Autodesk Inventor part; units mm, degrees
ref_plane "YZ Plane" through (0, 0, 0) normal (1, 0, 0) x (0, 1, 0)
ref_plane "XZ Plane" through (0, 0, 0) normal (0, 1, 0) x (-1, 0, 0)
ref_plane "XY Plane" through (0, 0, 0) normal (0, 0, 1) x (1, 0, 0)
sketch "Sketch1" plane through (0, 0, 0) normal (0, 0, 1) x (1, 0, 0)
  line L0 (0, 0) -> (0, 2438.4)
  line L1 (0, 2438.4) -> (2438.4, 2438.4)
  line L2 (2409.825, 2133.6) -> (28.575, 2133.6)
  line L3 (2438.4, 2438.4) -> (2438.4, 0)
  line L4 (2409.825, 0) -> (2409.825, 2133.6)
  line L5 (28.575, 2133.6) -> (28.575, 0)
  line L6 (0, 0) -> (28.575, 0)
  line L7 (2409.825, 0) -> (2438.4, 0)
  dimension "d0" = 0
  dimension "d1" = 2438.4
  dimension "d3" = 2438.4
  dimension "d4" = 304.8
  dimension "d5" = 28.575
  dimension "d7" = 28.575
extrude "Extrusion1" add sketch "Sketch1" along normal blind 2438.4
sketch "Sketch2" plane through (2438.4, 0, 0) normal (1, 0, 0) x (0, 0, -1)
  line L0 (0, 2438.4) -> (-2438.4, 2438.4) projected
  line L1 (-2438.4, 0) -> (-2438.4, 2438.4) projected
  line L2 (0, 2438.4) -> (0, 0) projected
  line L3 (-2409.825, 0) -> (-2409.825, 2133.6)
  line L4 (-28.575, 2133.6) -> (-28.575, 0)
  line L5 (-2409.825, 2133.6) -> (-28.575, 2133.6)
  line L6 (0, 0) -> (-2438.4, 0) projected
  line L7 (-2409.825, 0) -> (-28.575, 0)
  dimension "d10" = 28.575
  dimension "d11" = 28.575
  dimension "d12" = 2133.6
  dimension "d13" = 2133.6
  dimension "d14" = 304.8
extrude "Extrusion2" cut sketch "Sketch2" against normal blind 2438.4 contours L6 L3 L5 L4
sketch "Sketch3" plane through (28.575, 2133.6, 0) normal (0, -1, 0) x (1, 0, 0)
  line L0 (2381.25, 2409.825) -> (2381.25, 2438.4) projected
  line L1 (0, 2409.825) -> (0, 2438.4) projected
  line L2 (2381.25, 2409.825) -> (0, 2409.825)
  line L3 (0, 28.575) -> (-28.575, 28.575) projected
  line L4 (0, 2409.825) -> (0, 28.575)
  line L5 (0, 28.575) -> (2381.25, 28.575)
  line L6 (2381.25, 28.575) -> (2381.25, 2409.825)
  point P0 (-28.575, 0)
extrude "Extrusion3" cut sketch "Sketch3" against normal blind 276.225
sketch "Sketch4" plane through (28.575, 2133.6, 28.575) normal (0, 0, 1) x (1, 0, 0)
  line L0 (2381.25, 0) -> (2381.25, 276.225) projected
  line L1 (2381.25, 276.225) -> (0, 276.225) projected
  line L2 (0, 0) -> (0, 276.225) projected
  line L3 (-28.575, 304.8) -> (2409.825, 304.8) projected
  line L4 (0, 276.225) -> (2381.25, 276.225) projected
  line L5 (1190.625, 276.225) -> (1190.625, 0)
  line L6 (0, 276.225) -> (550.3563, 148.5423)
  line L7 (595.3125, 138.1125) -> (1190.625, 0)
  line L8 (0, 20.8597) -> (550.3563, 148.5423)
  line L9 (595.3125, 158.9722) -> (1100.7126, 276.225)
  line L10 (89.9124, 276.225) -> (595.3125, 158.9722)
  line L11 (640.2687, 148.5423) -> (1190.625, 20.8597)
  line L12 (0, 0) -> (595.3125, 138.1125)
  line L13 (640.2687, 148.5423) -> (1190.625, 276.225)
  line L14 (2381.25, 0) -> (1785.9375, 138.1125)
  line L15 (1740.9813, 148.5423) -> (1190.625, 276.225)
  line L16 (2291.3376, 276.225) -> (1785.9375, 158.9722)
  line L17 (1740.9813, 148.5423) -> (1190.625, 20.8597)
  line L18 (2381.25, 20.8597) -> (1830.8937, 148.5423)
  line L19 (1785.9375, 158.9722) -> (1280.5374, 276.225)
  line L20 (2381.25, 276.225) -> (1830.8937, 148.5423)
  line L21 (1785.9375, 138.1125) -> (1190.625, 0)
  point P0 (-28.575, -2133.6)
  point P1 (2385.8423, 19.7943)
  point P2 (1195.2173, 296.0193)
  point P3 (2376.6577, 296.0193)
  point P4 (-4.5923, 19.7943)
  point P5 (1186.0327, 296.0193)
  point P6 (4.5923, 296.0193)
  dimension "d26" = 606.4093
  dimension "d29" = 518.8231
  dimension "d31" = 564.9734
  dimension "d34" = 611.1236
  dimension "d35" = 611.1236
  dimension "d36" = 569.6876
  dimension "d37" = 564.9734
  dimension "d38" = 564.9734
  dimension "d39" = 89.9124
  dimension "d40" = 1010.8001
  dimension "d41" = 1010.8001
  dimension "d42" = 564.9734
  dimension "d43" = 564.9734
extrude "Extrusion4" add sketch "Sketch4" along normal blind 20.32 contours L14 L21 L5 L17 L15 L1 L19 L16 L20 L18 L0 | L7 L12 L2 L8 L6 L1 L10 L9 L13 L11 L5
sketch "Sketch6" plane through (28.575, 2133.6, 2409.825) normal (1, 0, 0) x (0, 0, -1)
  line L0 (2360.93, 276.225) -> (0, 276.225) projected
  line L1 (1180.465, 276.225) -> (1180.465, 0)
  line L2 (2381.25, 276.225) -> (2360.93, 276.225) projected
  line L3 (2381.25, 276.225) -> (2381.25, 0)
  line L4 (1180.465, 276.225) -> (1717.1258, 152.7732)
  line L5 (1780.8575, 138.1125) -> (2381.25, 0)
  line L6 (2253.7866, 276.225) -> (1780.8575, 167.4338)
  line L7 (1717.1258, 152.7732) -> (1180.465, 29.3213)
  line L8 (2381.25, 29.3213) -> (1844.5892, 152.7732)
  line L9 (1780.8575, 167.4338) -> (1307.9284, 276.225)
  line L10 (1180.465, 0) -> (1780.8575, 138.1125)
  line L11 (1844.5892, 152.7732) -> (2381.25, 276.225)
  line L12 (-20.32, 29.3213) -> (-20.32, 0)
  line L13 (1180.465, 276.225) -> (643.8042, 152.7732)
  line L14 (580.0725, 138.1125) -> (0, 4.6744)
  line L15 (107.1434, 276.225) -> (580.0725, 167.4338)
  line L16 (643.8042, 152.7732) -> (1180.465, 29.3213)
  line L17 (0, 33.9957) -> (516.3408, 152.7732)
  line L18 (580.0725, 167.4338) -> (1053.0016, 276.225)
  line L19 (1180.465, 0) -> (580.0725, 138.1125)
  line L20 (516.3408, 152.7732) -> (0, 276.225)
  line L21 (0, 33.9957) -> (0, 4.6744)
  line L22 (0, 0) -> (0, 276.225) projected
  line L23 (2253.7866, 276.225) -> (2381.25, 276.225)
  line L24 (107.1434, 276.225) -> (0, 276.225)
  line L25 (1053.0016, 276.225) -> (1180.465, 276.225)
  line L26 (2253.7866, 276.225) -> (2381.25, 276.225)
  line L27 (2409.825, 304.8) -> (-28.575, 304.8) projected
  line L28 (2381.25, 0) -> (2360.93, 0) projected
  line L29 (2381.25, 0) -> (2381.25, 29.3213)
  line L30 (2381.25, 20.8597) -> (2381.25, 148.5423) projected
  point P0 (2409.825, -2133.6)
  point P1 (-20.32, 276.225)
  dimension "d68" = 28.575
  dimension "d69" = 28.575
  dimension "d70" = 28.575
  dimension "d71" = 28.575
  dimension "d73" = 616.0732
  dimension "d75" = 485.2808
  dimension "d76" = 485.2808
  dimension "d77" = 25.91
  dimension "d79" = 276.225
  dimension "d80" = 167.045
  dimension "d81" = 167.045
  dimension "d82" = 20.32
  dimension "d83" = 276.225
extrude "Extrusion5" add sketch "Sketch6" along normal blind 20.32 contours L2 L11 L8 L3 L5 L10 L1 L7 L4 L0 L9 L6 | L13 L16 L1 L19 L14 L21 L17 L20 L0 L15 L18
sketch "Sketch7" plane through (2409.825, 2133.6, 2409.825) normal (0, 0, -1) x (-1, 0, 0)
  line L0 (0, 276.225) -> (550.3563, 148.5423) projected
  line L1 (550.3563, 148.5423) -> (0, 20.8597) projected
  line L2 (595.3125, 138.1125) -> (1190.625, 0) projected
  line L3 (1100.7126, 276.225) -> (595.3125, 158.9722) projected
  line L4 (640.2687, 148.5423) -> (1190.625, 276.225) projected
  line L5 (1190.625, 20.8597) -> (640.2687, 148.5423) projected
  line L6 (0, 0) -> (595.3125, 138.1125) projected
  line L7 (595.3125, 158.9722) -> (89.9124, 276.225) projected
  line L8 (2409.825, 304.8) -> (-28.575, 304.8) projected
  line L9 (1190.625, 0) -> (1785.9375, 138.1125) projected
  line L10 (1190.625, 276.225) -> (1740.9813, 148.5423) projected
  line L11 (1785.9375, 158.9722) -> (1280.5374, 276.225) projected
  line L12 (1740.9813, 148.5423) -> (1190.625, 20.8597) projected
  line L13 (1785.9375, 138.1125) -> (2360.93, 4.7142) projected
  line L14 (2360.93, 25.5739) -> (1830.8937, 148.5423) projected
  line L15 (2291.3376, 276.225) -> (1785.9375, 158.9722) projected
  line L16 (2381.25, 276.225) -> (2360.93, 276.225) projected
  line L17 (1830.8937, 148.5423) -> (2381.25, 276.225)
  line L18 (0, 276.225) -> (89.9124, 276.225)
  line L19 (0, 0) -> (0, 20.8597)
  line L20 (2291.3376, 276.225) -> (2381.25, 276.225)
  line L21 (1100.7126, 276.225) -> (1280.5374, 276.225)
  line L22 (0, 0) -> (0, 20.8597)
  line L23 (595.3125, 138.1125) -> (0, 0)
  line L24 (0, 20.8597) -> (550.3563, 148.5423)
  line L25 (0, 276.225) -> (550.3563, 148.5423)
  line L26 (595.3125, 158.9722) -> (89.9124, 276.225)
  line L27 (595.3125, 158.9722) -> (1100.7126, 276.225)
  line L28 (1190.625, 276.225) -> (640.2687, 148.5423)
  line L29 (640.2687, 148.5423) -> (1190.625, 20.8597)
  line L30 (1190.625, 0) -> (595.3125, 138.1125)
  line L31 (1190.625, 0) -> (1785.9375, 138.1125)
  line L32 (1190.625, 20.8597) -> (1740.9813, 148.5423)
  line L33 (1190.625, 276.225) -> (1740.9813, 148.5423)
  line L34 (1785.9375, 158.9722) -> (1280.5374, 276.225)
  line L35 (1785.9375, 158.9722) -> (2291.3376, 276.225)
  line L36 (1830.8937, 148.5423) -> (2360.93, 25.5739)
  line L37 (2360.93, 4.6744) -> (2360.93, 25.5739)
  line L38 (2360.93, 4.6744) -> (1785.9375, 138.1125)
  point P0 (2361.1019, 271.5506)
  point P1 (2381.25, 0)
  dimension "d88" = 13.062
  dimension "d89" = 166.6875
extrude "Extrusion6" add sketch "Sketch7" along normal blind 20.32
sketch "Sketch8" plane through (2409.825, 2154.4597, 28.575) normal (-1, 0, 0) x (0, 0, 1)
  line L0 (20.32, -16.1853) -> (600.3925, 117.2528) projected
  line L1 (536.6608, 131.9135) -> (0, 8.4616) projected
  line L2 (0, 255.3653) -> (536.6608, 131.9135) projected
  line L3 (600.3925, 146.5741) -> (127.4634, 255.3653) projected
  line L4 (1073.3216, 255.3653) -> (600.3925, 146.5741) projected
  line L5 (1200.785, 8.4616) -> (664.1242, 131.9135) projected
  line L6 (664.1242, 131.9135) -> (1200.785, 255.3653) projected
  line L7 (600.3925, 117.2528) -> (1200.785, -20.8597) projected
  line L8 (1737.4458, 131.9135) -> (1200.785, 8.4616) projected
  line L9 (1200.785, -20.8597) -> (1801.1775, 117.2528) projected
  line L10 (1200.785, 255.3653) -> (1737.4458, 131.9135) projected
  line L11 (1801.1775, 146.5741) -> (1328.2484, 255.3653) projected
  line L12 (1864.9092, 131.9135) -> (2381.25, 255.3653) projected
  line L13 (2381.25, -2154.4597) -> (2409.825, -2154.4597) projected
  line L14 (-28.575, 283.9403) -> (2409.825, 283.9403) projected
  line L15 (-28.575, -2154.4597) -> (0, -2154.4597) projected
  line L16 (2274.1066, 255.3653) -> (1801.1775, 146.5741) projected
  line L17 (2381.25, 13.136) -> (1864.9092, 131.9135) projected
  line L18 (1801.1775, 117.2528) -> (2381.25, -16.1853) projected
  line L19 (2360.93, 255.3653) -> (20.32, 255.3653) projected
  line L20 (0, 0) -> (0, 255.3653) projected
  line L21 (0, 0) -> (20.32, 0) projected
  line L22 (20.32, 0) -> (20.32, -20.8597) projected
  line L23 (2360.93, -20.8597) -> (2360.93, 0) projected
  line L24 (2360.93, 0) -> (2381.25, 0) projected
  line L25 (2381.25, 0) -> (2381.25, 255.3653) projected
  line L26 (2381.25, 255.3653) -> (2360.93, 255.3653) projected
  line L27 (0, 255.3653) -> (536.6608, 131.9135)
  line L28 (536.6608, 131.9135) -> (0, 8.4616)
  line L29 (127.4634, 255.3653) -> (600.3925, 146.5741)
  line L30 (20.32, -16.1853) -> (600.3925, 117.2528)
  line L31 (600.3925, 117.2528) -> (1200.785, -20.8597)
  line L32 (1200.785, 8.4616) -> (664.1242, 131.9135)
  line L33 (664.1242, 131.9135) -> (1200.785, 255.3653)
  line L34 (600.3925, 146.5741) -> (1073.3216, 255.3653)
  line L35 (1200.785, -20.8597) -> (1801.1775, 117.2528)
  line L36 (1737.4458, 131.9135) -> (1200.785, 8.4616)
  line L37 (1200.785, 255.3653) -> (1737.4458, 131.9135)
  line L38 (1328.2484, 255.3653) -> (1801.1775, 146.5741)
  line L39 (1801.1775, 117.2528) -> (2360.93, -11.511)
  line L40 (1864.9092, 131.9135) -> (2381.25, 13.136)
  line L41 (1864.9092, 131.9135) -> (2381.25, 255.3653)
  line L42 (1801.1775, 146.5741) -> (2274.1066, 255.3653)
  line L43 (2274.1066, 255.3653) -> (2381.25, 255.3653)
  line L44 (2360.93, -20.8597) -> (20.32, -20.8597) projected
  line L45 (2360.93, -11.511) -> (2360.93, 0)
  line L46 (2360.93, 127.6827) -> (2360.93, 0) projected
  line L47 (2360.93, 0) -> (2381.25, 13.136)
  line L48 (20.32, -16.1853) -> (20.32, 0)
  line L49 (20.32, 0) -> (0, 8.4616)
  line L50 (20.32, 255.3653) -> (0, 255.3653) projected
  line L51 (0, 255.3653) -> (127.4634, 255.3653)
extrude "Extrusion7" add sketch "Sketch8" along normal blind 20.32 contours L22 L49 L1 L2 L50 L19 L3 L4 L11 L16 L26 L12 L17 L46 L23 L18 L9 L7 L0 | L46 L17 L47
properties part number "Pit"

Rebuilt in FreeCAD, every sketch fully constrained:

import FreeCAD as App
import Part
import Sketcher
Q = App.Units.Quantity

doc = App.newDocument("Part")
body = doc.addObject("PartDesign::Body", "Body")

sketch1 = doc.addObject("Sketcher::SketchObject", "Sketch")
body.addObject(sketch1)
sketch1.AttachmentSupport = (doc.XY_Plane, [""])
sketch1.MapMode = "FlatFace"
sketch1.addGeometry(Part.LineSegment(App.Vector(0, 2438, 0), App.Vector(0, 0, 0)), False)
sketch1.addGeometry(Part.LineSegment(App.Vector(0, 0, 0), App.Vector(29, 0, 0)), False)
sketch1.addGeometry(Part.LineSegment(App.Vector(29, 0, 0), App.Vector(29, 2134, 0)), False)
sketch1.addGeometry(Part.LineSegment(App.Vector(29, 2134, 0), App.Vector(2410, 2134, 0)), False)
sketch1.addGeometry(Part.LineSegment(App.Vector(2410, 2134, 0), App.Vector(2410, 0, 0)), False)
sketch1.addGeometry(Part.LineSegment(App.Vector(2410, 0, 0), App.Vector(2438, 0, 0)), False)
sketch1.addGeometry(Part.LineSegment(App.Vector(2438, 0, 0), App.Vector(2438, 2438, 0)), False)
sketch1.addGeometry(Part.LineSegment(App.Vector(2438, 2438, 0), App.Vector(0, 2438, 0)), False)
sketch1.addConstraint(Sketcher.Constraint("Coincident", 0, 2, 1, 1))
sketch1.addConstraint(Sketcher.Constraint("Coincident", 1, 2, 2, 1))
sketch1.addConstraint(Sketcher.Constraint("Coincident", 2, 2, 3, 1))
sketch1.addConstraint(Sketcher.Constraint("Coincident", 3, 2, 4, 1))
sketch1.addConstraint(Sketcher.Constraint("Coincident", 4, 2, 5, 1))
sketch1.addConstraint(Sketcher.Constraint("Coincident", 5, 2, 6, 1))
sketch1.addConstraint(Sketcher.Constraint("Coincident", 6, 2, 7, 1))
sketch1.addConstraint(Sketcher.Constraint("Coincident", 7, 2, 0, 1))
sketch1.addConstraint(Sketcher.Constraint("Vertical", 0))
sketch1.addConstraint(Sketcher.Constraint("Horizontal", 1))
sketch1.addConstraint(Sketcher.Constraint("Vertical", 2))
sketch1.addConstraint(Sketcher.Constraint("Horizontal", 3))
sketch1.addConstraint(Sketcher.Constraint("Vertical", 4))
sketch1.addConstraint(Sketcher.Constraint("Horizontal", 5))
sketch1.addConstraint(Sketcher.Constraint("Vertical", 6))
sketch1.addConstraint(Sketcher.Constraint("Horizontal", 7))
sketch1.addConstraint(Sketcher.Constraint("Coincident", 0, 2, -1, 1))
sketch1.addConstraint(Sketcher.Constraint("PointOnObject", 4, 2, -1))
sketch1.addConstraint(Sketcher.Constraint("Equal", 1, 5))
sketch1.addConstraint(Sketcher.Constraint("Equal", 7, 0))
sketch1.addConstraint(Sketcher.Constraint("DistanceX", 7, 2, 7, 1, Q("96 in")))
sketch1.addConstraint(Sketcher.Constraint("DistanceY", 3, 2, 6, 2, Q("12 in")))
sketch1.addConstraint(Sketcher.Constraint("DistanceX", 1, 1, 1, 2, Q("1.125 in")))
pad1 = doc.addObject("PartDesign::Pad", "Pad")
body.addObject(pad1)
pad1.Profile = sketch1
pad1.Length = Q("96 in")

sketch2 = doc.addObject("Sketcher::SketchObject", "Sketch001")
body.addObject(sketch2)
sketch2.AttachmentSupport = (doc.YZ_Plane, [""])
sketch2.MapMode = "FlatFace"
sketch2.AttachmentOffset = App.Placement(App.Vector(0, 0, 96 * 25.4), App.Rotation())
sketch2.addGeometry(Part.LineSegment(App.Vector(0, 2410, 0), App.Vector(0, 29, 0)), False)
sketch2.addGeometry(Part.LineSegment(App.Vector(0, 29, 0), App.Vector(2134, 29, 0)), False)
sketch2.addGeometry(Part.LineSegment(App.Vector(2134, 29, 0), App.Vector(2134, 2410, 0)), False)
sketch2.addGeometry(Part.LineSegment(App.Vector(2134, 2410, 0), App.Vector(0, 2410, 0)), False)
sketch2.addConstraint(Sketcher.Constraint("Coincident", 0, 2, 1, 1))
sketch2.addConstraint(Sketcher.Constraint("Coincident", 1, 2, 2, 1))
sketch2.addConstraint(Sketcher.Constraint("Coincident", 2, 2, 3, 1))
sketch2.addConstraint(Sketcher.Constraint("Coincident", 3, 2, 0, 1))
sketch2.addConstraint(Sketcher.Constraint("Vertical", 0))
sketch2.addConstraint(Sketcher.Constraint("Horizontal", 1))
sketch2.addConstraint(Sketcher.Constraint("Vertical", 2))
sketch2.addConstraint(Sketcher.Constraint("Horizontal", 3))
sketch2.addConstraint(Sketcher.Constraint("PointOnObject", 0, 2, -2))
sketch2.addConstraint(Sketcher.Constraint("DistanceX", 1, 1, 1, 2, Q("84 in")))
sketch2.addConstraint(Sketcher.Constraint("DistanceY", -1, 1, 0, 2, Q("1.125 in")))
sketch2.addConstraint(Sketcher.Constraint("DistanceY", 0, 2, 0, 1, Q("93.75 in")))
pocket1 = doc.addObject("PartDesign::Pocket", "Pocket")
body.addObject(pocket1)
pocket1.Profile = sketch2
pocket1.Length = Q("96 in")

sketch3 = doc.addObject("Sketcher::SketchObject", "Sketch002")
body.addObject(sketch3)
sketch3.AttachmentSupport = (doc.XZ_Plane, [""])
sketch3.MapMode = "FlatFace"
sketch3.AttachmentOffset = App.Placement(App.Vector(0, 0, -84 * 25.4), App.Rotation())
sketch3.addGeometry(Part.LineSegment(App.Vector(2410, 29, 0), App.Vector(2410, 2410, 0)), False)
sketch3.addGeometry(Part.LineSegment(App.Vector(2410, 2410, 0), App.Vector(29, 2410, 0)), False)
sketch3.addGeometry(Part.LineSegment(App.Vector(29, 2410, 0), App.Vector(29, 29, 0)), False)
sketch3.addGeometry(Part.LineSegment(App.Vector(29, 29, 0), App.Vector(2410, 29, 0)), False)
sketch3.addConstraint(Sketcher.Constraint("Coincident", 0, 2, 1, 1))
sketch3.addConstraint(Sketcher.Constraint("Coincident", 1, 2, 2, 1))
sketch3.addConstraint(Sketcher.Constraint("Coincident", 2, 2, 3, 1))
sketch3.addConstraint(Sketcher.Constraint("Coincident", 3, 2, 0, 1))
sketch3.addConstraint(Sketcher.Constraint("Vertical", 0))
sketch3.addConstraint(Sketcher.Constraint("Horizontal", 1))
sketch3.addConstraint(Sketcher.Constraint("Vertical", 2))
sketch3.addConstraint(Sketcher.Constraint("Horizontal", 3))
sketch3.addConstraint(Sketcher.Constraint("Equal", 3, 0))
sketch3.addConstraint(Sketcher.Constraint("DistanceX", 1, 2, 1, 1, Q("93.75 in")))
sketch3.addConstraint(Sketcher.Constraint("DistanceX", -1, 1, 0, 2, Q("94.875 in")))
sketch3.addConstraint(Sketcher.Constraint("DistanceY", -1, 1, 0, 2, Q("94.875 in")))
pocket2 = doc.addObject("PartDesign::Pocket", "Pocket001")
body.addObject(pocket2)
pocket2.Profile = sketch3
pocket2.Length = Q("10.875 in")

sketch4 = doc.addObject("Sketcher::SketchObject", "Sketch003")
body.addObject(sketch4)
sketch4.AttachmentSupport = (doc.XY_Plane, [""])
sketch4.MapMode = "FlatFace"
sketch4.AttachmentOffset = App.Placement(App.Vector(0, 0, 1.125 * 25.4), App.Rotation())
sketch4.addGeometry(Part.LineSegment(App.Vector(1219.2, 2409.825, 0), App.Vector(1129.2876, 2409.825, 0)), False)
sketch4.addGeometry(Part.LineSegment(App.Vector(1129.2876, 2409.825, 0), App.Vector(623.8875, 2292.5722, 0)), False)
sketch4.addGeometry(Part.LineSegment(App.Vector(623.8875, 2292.5722, 0), App.Vector(118.4874, 2409.825, 0)), False)
sketch4.addGeometry(Part.LineSegment(App.Vector(118.4874, 2409.825, 0), App.Vector(28.575, 2409.825, 0)), False)
sketch4.addGeometry(Part.LineSegment(App.Vector(28.575, 2409.825, 0), App.Vector(578.9313, 2282.1423, 0)), False)
sketch4.addGeometry(Part.LineSegment(App.Vector(578.9313, 2282.1423, 0), App.Vector(28.575, 2154.4597, 0)), False)
sketch4.addGeometry(Part.LineSegment(App.Vector(28.575, 2154.4597, 0), App.Vector(28.575, 2133.6, 0)), False)
sketch4.addGeometry(Part.LineSegment(App.Vector(28.575, 2133.6, 0), App.Vector(623.8875, 2271.7125, 0)), False)
sketch4.addGeometry(Part.LineSegment(App.Vector(623.8875, 2271.7125, 0), App.Vector(1219.2, 2133.6, 0)), False)
sketch4.addGeometry(Part.LineSegment(App.Vector(1219.2, 2133.6, 0), App.Vector(1814.5125, 2271.7125, 0)), False)
sketch4.addGeometry(Part.LineSegment(App.Vector(1814.5125, 2271.7125, 0), App.Vector(2409.825, 2133.6, 0)), False)
sketch4.addGeometry(Part.LineSegment(App.Vector(2409.825, 2133.6, 0), App.Vector(2409.825, 2154.4597, 0)), False)
sketch4.addGeometry(Part.LineSegment(App.Vector(2409.825, 2154.4597, 0), App.Vector(1859.4687, 2282.1423, 0)), False)
sketch4.addGeometry(Part.LineSegment(App.Vector(1859.4687, 2282.1423, 0), App.Vector(2409.825, 2409.825, 0)), False)
sketch4.addGeometry(Part.LineSegment(App.Vector(2409.825, 2409.825, 0), App.Vector(2319.9126, 2409.825, 0)), False)
sketch4.addGeometry(Part.LineSegment(App.Vector(2319.9126, 2409.825, 0), App.Vector(1814.5125, 2292.5722, 0)), False)
sketch4.addGeometry(Part.LineSegment(App.Vector(1814.5125, 2292.5722, 0), App.Vector(1309.1124, 2409.825, 0)), False)
sketch4.addGeometry(Part.LineSegment(App.Vector(1309.1124, 2409.825, 0), App.Vector(1219.2, 2409.825, 0)), False)
sketch4.addGeometry(Part.LineSegment(App.Vector(1219.2, 2409.825, 0), App.Vector(1769.5563, 2282.1423, 0)), False)
sketch4.addGeometry(Part.LineSegment(App.Vector(1769.5563, 2282.1423, 0), App.Vector(1219.2, 2154.4597, 0)), False)
sketch4.addGeometry(Part.LineSegment(App.Vector(1219.2, 2154.4597, 0), App.Vector(668.8437, 2282.1423, 0)), False)
sketch4.addGeometry(Part.LineSegment(App.Vector(668.8437, 2282.1423, 0), App.Vector(1219.2, 2409.825, 0)), False)
sketch4.addConstraint(Sketcher.Constraint("Coincident", 0, 2, 1, 1))
sketch4.addConstraint(Sketcher.Constraint("Coincident", 1, 2, 2, 1))
sketch4.addConstraint(Sketcher.Constraint("Coincident", 2, 2, 3, 1))
sketch4.addConstraint(Sketcher.Constraint("Coincident", 3, 2, 4, 1))
sketch4.addConstraint(Sketcher.Constraint("Coincident", 4, 2, 5, 1))
sketch4.addConstraint(Sketcher.Constraint("Coincident", 5, 2, 6, 1))
sketch4.addConstraint(Sketcher.Constraint("Coincident", 6, 2, 7, 1))
sketch4.addConstraint(Sketcher.Constraint("Coincident", 7, 2, 8, 1))
sketch4.addConstraint(Sketcher.Constraint("Coincident", 8, 2, 9, 1))
sketch4.addConstraint(Sketcher.Constraint("Coincident", 9, 2, 10, 1))
sketch4.addConstraint(Sketcher.Constraint("Coincident", 10, 2, 11, 1))
sketch4.addConstraint(Sketcher.Constraint("Coincident", 11, 2, 12, 1))
sketch4.addConstraint(Sketcher.Constraint("Coincident", 12, 2, 13, 1))
sketch4.addConstraint(Sketcher.Constraint("Coincident", 13, 2, 14, 1))
sketch4.addConstraint(Sketcher.Constraint("Coincident", 14, 2, 15, 1))
sketch4.addConstraint(Sketcher.Constraint("Coincident", 15, 2, 16, 1))
sketch4.addConstraint(Sketcher.Constraint("Coincident", 16, 2, 17, 1))
sketch4.addConstraint(Sketcher.Constraint("Coincident", 17, 2, 0, 1))
sketch4.addConstraint(Sketcher.Constraint("Coincident", 18, 2, 19, 1))
sketch4.addConstraint(Sketcher.Constraint("Coincident", 19, 2, 20, 1))
sketch4.addConstraint(Sketcher.Constraint("Coincident", 20, 2, 21, 1))
sketch4.addConstraint(Sketcher.Constraint("Coincident", 21, 2, 18, 1))
sketch4.addConstraint(Sketcher.Constraint("Horizontal", 0))
sketch4.addConstraint(Sketcher.Constraint("Horizontal", 3))
sketch4.addConstraint(Sketcher.Constraint("Vertical", 6))
sketch4.addConstraint(Sketcher.Constraint("Vertical", 11))
sketch4.addConstraint(Sketcher.Constraint("Horizontal", 14))
sketch4.addConstraint(Sketcher.Constraint("Horizontal", 17))
sketch4.addConstraint(Sketcher.Constraint("Coincident", 21, 2, 17, 2))
sketch4.addConstraint(Sketcher.Constraint("DistanceY", -1, 1, 6, 2, Q("84 in")))
sketch4.addConstraint(Sketcher.Constraint("DistanceX", -1, 1, 8, 2, Q("48 in")))
sketch4.addConstraint(Sketcher.Constraint("DistanceY", -1, 1, 8, 2, Q("84 in")))
sketch4.addConstraint(Sketcher.Constraint("DistanceY", -1, 1, 10, 2, Q("84 in")))
sketch4.addConstraint(Sketcher.Constraint("DistanceX", -1, 1, 17, 2, Q("48 in")))
sketch4.addConstraint(Sketcher.Constraint("DistanceX", -1, 1, 19, 2, Q("48 in")))
sketch4.addConstraint(Sketcher.Constraint("Distance", 1, Q("20.4261 in")))
sketch4.addConstraint(Sketcher.Constraint("Distance", 2, Q("20.4261 in")))
sketch4.addConstraint(Sketcher.Constraint("Distance", 15, Q("20.4261 in")))
sketch4.addConstraint(Sketcher.Constraint("Distance", 16, Q("20.4261 in")))
sketch4.addConstraint(Sketcher.Constraint("DistanceX", 0, 2, 0, 1, Q("89.9124 mm")))
sketch4.addConstraint(Sketcher.Constraint("DistanceX", 3, 2, 3, 1, Q("89.9124 mm")))
sketch4.addConstraint(Sketcher.Constraint("DistanceX", 14, 2, 14, 1, Q("89.9124 mm")))
sketch4.addConstraint(Sketcher.Constraint("DistanceX", 17, 2, 17, 1, Q("89.9124 mm")))
sketch4.addConstraint(Sketcher.Constraint("Distance", 4, Q("564.9734 mm")))
sketch4.addConstraint(Sketcher.Constraint("Distance", 5, Q("564.9734 mm")))
sketch4.addConstraint(Sketcher.Constraint("Distance", 7, Q("611.1236 mm")))
sketch4.addConstraint(Sketcher.Constraint("Distance", 8, Q("611.1236 mm")))
sketch4.addConstraint(Sketcher.Constraint("Distance", 9, Q("611.1236 mm")))
sketch4.addConstraint(Sketcher.Constraint("Distance", 10, Q("611.1236 mm")))
sketch4.addConstraint(Sketcher.Constraint("Distance", 12, Q("564.9734 mm")))
sketch4.addConstraint(Sketcher.Constraint("Distance", 13, Q("564.9734 mm")))
sketch4.addConstraint(Sketcher.Constraint("Distance", 18, Q("564.9734 mm")))
sketch4.addConstraint(Sketcher.Constraint("Distance", 19, Q("564.9734 mm")))
sketch4.addConstraint(Sketcher.Constraint("Distance", 20, Q("564.9734 mm")))
sketch4.addConstraint(Sketcher.Constraint("Distance", 21, Q("564.9734 mm")))
sketch4.addConstraint(Sketcher.Constraint("DistanceX", 2, 2, 0, 2, Q("1010.8002 mm")))
sketch4.addConstraint(Sketcher.Constraint("DistanceX", 5, 2, 2, 2, Q("89.9124 mm")))
sketch4.addConstraint(Sketcher.Constraint("DistanceX", 14, 2, 11, 2, Q("89.9124 mm")))
sketch4.addConstraint(Sketcher.Constraint("DistanceX", 18, 2, 12, 2, Q("89.9124 mm")))
sketch4.addConstraint(Sketcher.Constraint("DistanceX", 4, 2, 20, 2, Q("89.9124 mm")))
sketch4.addConstraint(Sketcher.Constraint("DistanceY", -1, 1, 0, 2, Q("94.875 in")))
sketch4.addConstraint(Sketcher.Constraint("DistanceX", -1, 1, 1, 2, Q("24.5625 in")))
sketch4.addConstraint(Sketcher.Constraint("DistanceX", -1, 1, 9, 2, Q("71.4375 in")))
sketch4.addConstraint(Sketcher.Constraint("DistanceY", -1, 1, 13, 2, Q("94.875 in")))
sketch4.addConstraint(Sketcher.Constraint("DistanceY", 5, 2, 1, 2, Q("5.4375 in")))
pad2 = doc.addObject("PartDesign::Pad", "Pad001")
body.addObject(pad2)
pad2.Profile = sketch4
pad2.Length = Q("0.8 in")

sketch5 = doc.addObject("Sketcher::SketchObject", "Sketch004")
body.addObject(sketch5)
sketch5.AttachmentSupport = (doc.YZ_Plane, [""])
sketch5.MapMode = "FlatFace"
sketch5.AttachmentOffset = App.Placement(App.Vector(0, 0, 1.125 * 25.4), App.Rotation())
sketch5.addGeometry(Part.LineSegment(App.Vector(2410, 1229, 0), App.Vector(2410, 1357, 0)), False)
sketch5.addGeometry(Part.LineSegment(App.Vector(2410, 1357, 0), App.Vector(2301, 1830, 0)), False)
sketch5.addGeometry(Part.LineSegment(App.Vector(2301, 1830, 0), App.Vector(2410, 2303, 0)), False)
sketch5.addGeometry(Part.LineSegment(App.Vector(2410, 2303, 0), App.Vector(2410, 2410, 0)), False)
sketch5.addGeometry(Part.LineSegment(App.Vector(2410, 2410, 0), App.Vector(2286, 1893, 0)), False)
sketch5.addGeometry(Part.LineSegment(App.Vector(2286, 1893, 0), App.Vector(2168, 2410, 0)), False)
sketch5.addGeometry(Part.LineSegment(App.Vector(2168, 2410, 0), App.Vector(2138, 2410, 0)), False)
sketch5.addGeometry(Part.LineSegment(App.Vector(2138, 2410, 0), App.Vector(2272, 1830, 0)), False)
sketch5.addGeometry(Part.LineSegment(App.Vector(2272, 1830, 0), App.Vector(2134, 1229, 0)), False)
sketch5.addGeometry(Part.LineSegment(App.Vector(2134, 1229, 0), App.Vector(2272, 629, 0)), False)
sketch5.addGeometry(Part.LineSegment(App.Vector(2272, 629, 0), App.Vector(2134, 29, 0)), False)
sketch5.addGeometry(Part.LineSegment(App.Vector(2134, 29, 0), App.Vector(2163, 29, 0)), False)
sketch5.addGeometry(Part.LineSegment(App.Vector(2163, 29, 0), App.Vector(2286, 565, 0)), False)
sketch5.addGeometry(Part.LineSegment(App.Vector(2286, 565, 0), App.Vector(2410, 29, 0)), False)
sketch5.addGeometry(Part.LineSegment(App.Vector(2410, 29, 0), App.Vector(2410, 156, 0)), False)
sketch5.addGeometry(Part.LineSegment(App.Vector(2410, 156, 0), App.Vector(2301, 629, 0)), False)
sketch5.addGeometry(Part.LineSegment(App.Vector(2301, 629, 0), App.Vector(2410, 1102, 0)), False)
sketch5.addGeometry(Part.LineSegment(App.Vector(2410, 1102, 0), App.Vector(2410, 1229, 0)), False)
sketch5.addGeometry(Part.LineSegment(App.Vector(2410, 1229, 0), App.Vector(2286, 693, 0)), False)
sketch5.addGeometry(Part.LineSegment(App.Vector(2286, 693, 0), App.Vector(2163, 1229, 0)), False)
sketch5.addGeometry(Part.LineSegment(App.Vector(2163, 1229, 0), App.Vector(2286, 1766, 0)), False)
sketch5.addGeometry(Part.LineSegment(App.Vector(2286, 1766, 0), App.Vector(2410, 1229, 0)), False)
sketch5.addConstraint(Sketcher.Constraint("Coincident", 0, 2, 1, 1))
sketch5.addConstraint(Sketcher.Constraint("Coincident", 1, 2, 2, 1))
sketch5.addConstraint(Sketcher.Constraint("Coincident", 2, 2, 3, 1))
sketch5.addConstraint(Sketcher.Constraint("Coincident", 3, 2, 4, 1))
sketch5.addConstraint(Sketcher.Constraint("Coincident", 4, 2, 5, 1))
sketch5.addConstraint(Sketcher.Constraint("Coincident", 5, 2, 6, 1))
sketch5.addConstraint(Sketcher.Constraint("Coincident", 6, 2, 7, 1))
sketch5.addConstraint(Sketcher.Constraint("Coincident", 7, 2, 8, 1))
sketch5.addConstraint(Sketcher.Constraint("Coincident", 8, 2, 9, 1))
sketch5.addConstraint(Sketcher.Constraint("Coincident", 9, 2, 10, 1))
sketch5.addConstraint(Sketcher.Constraint("Coincident", 10, 2, 11, 1))
sketch5.addConstraint(Sketcher.Constraint("Coincident", 11, 2, 12, 1))
sketch5.addConstraint(Sketcher.Constraint("Coincident", 12, 2, 13, 1))
sketch5.addConstraint(Sketcher.Constraint("Coincident", 13, 2, 14, 1))
sketch5.addConstraint(Sketcher.Constraint("Coincident", 14, 2, 15, 1))
sketch5.addConstraint(Sketcher.Constraint("Coincident", 15, 2, 16, 1))
sketch5.addConstraint(Sketcher.Constraint("Coincident", 16, 2, 17, 1))
sketch5.addConstraint(Sketcher.Constraint("Coincident", 17, 2, 0, 1))
sketch5.addConstraint(Sketcher.Constraint("Coincident", 18, 2, 19, 1))
sketch5.addConstraint(Sketcher.Constraint("Coincident", 19, 2, 20, 1))
sketch5.addConstraint(Sketcher.Constraint("Coincident", 20, 2, 21, 1))
sketch5.addConstraint(Sketcher.Constraint("Coincident", 21, 2, 18, 1))
sketch5.addConstraint(Sketcher.Constraint("Vertical", 0))
sketch5.addConstraint(Sketcher.Constraint("Vertical", 3))
sketch5.addConstraint(Sketcher.Constraint("Horizontal", 6))
sketch5.addConstraint(Sketcher.Constraint("Horizontal", 11))
sketch5.addConstraint(Sketcher.Constraint("Vertical", 14))
sketch5.addConstraint(Sketcher.Constraint("Vertical", 17))
sketch5.addConstraint(Sketcher.Constraint("Coincident", 21, 2, 17, 2))
sketch5.addConstraint(Sketcher.Constraint("Parallel", 1, 5))
sketch5.addConstraint(Sketcher.Constraint("Parallel", 5, 7))
sketch5.addConstraint(Sketcher.Constraint("Parallel", 2, 8))
sketch5.addConstraint(Sketcher.Constraint("Parallel", 7, 9))
sketch5.addConstraint(Sketcher.Constraint("Parallel", 8, 10))
sketch5.addConstraint(Sketcher.Constraint("Parallel", 10, 12))
sketch5.addConstraint(Sketcher.Constraint("Parallel", 9, 13))
sketch5.addConstraint(Sketcher.Constraint("Parallel", 13, 15))
sketch5.addConstraint(Sketcher.Constraint("Parallel", 12, 16))
sketch5.addConstraint(Sketcher.Constraint("Parallel", 16, 18))
sketch5.addConstraint(Sketcher.Constraint("Parallel", 15, 19))
sketch5.addConstraint(Sketcher.Constraint("Parallel", 18, 20))
sketch5.addConstraint(Sketcher.Constraint("Parallel", 19, 21))
sketch5.addConstraint(Sketcher.Constraint("Horizontal", 3, 2, 5, 2))
sketch5.addConstraint(Sketcher.Constraint("Horizontal", 1, 2, 7, 2))
sketch5.addConstraint(Sketcher.Constraint("Horizontal", 11, 2, 13, 2))
sketch5.addConstraint(Sketcher.Constraint("Horizontal", 9, 2, 15, 2))
sketch5.addConstraint(Sketcher.Constraint("Horizontal", 8, 2, 17, 2))
sketch5.addConstraint(Sketcher.Constraint("Horizontal", 17, 2, 19, 2))
sketch5.addConstraint(Sketcher.Constraint("Vertical", 0, 2, 2, 2))
sketch5.addConstraint(Sketcher.Constraint("Vertical", 7, 2, 9, 2))
sketch5.addConstraint(Sketcher.Constraint("Vertical", 8, 2, 10, 2))
sketch5.addConstraint(Sketcher.Constraint("Vertical", 4, 2, 12, 2))
sketch5.addConstraint(Sketcher.Constraint("Vertical", 3, 2, 13, 2))
sketch5.addConstraint(Sketcher.Constraint("Vertical", 1, 2, 15, 2))
sketch5.addConstraint(Sketcher.Constraint("Vertical", 12, 2, 18, 2))
sketch5.addConstraint(Sketcher.Constraint("Vertical", 11, 2, 19, 2))
sketch5.addConstraint(Sketcher.Constraint("Equal", 6, 11))
sketch5.addConstraint(Sketcher.Constraint("DistanceY", -1, 1, 10, 2, Q("1.125 in")))
sketch5.addConstraint(Sketcher.Constraint("DistanceX", -1, 1, 8, 2, Q("84 in")))
sketch5.addConstraint(Sketcher.Constraint("DistanceX", 8, 2, 0, 2, Q("10.875 in")))
sketch5.addConstraint(Sketcher.Constraint("DistanceY", -1, 1, 8, 2, Q("48.4 in")))
sketch5.addConstraint(Sketcher.Constraint("Distance", 1, Q("485.2808 mm")))
sketch5.addConstraint(Sketcher.Constraint("Distance", 8, Q("616.0732 mm")))
sketch5.addConstraint(Sketcher.Constraint("DistanceY", -1, 1, 3, 2, Q("94.875 in")))
sketch5.addConstraint(Sketcher.Constraint("DistanceX", 11, 2, 15, 2, Q("5.4375 in")))
pad3 = doc.addObject("PartDesign::Pad", "Pad002")
body.addObject(pad3)
pad3.Profile = sketch5
pad3.Length = Q("0.8 in")

sketch6 = doc.addObject("Sketcher::SketchObject", "Sketch005")
body.addObject(sketch6)
sketch6.AttachmentSupport = (doc.XY_Plane, [""])
sketch6.MapMode = "FlatFace"
sketch6.AttachmentOffset = App.Placement(App.Vector(0, 0, 94.875 * 25.4), App.Rotation())
sketch6.addGeometry(Part.LineSegment(App.Vector(1219.2, 2409.825, 0), App.Vector(1309.1124, 2409.825, 0)), False)
sketch6.addGeometry(Part.LineSegment(App.Vector(1309.1124, 2409.825, 0), App.Vector(1814.5125, 2292.5722, 0)), False)
sketch6.addGeometry(Part.LineSegment(App.Vector(1814.5125, 2292.5722, 0), App.Vector(2319.9126, 2409.825, 0)), False)
sketch6.addGeometry(Part.LineSegment(App.Vector(2319.9126, 2409.825, 0), App.Vector(2409.825, 2409.825, 0)), False)
sketch6.addGeometry(Part.LineSegment(App.Vector(2409.825, 2409.825, 0), App.Vector(1859.4687, 2282.1423, 0)), False)
sketch6.addGeometry(Part.LineSegment(App.Vector(1859.4687, 2282.1423, 0), App.Vector(2409.825, 2154.4597, 0)), False)
sketch6.addGeometry(Part.LineSegment(App.Vector(2409.825, 2154.4597, 0), App.Vector(2409.825, 2133.6, 0)), False)
sketch6.addGeometry(Part.LineSegment(App.Vector(2409.825, 2133.6, 0), App.Vector(1814.5125, 2271.7125, 0)), False)
sketch6.addGeometry(Part.LineSegment(App.Vector(1814.5125, 2271.7125, 0), App.Vector(1219.2, 2133.6, 0)), False)
sketch6.addGeometry(Part.LineSegment(App.Vector(1219.2, 2133.6, 0), App.Vector(623.8875, 2271.7125, 0)), False)
sketch6.addGeometry(Part.LineSegment(App.Vector(623.8875, 2271.7125, 0), App.Vector(48.895, 2138.2744, 0)), False)
sketch6.addGeometry(Part.LineSegment(App.Vector(48.895, 2138.2744, 0), App.Vector(48.895, 2159.1739, 0)), False)
sketch6.addGeometry(Part.LineSegment(App.Vector(48.895, 2159.1739, 0), App.Vector(578.9313, 2282.1423, 0)), False)
sketch6.addGeometry(Part.LineSegment(App.Vector(578.9313, 2282.1423, 0), App.Vector(28.575, 2409.825, 0)), False)
sketch6.addGeometry(Part.LineSegment(App.Vector(28.575, 2409.825, 0), App.Vector(118.4874, 2409.825, 0)), False)
sketch6.addGeometry(Part.LineSegment(App.Vector(118.4874, 2409.825, 0), App.Vector(623.8875, 2292.5722, 0)), False)
sketch6.addGeometry(Part.LineSegment(App.Vector(623.8875, 2292.5722, 0), App.Vector(1129.2876, 2409.825, 0)), False)
sketch6.addGeometry(Part.LineSegment(App.Vector(1129.2876, 2409.825, 0), App.Vector(1219.2, 2409.825, 0)), False)
sketch6.addGeometry(Part.LineSegment(App.Vector(1219.2, 2409.825, 0), App.Vector(668.8437, 2282.1423, 0)), False)
sketch6.addGeometry(Part.LineSegment(App.Vector(668.8437, 2282.1423, 0), App.Vector(1219.2, 2154.4597, 0)), False)
sketch6.addGeometry(Part.LineSegment(App.Vector(1219.2, 2154.4597, 0), App.Vector(1769.5563, 2282.1423, 0)), False)
sketch6.addGeometry(Part.LineSegment(App.Vector(1769.5563, 2282.1423, 0), App.Vector(1219.2, 2409.825, 0)), False)
sketch6.addConstraint(Sketcher.Constraint("Coincident", 0, 2, 1, 1))
sketch6.addConstraint(Sketcher.Constraint("Coincident", 1, 2, 2, 1))
sketch6.addConstraint(Sketcher.Constraint("Coincident", 2, 2, 3, 1))
sketch6.addConstraint(Sketcher.Constraint("Coincident", 3, 2, 4, 1))
sketch6.addConstraint(Sketcher.Constraint("Coincident", 4, 2, 5, 1))
sketch6.addConstraint(Sketcher.Constraint("Coincident", 5, 2, 6, 1))
sketch6.addConstraint(Sketcher.Constraint("Coincident", 6, 2, 7, 1))
sketch6.addConstraint(Sketcher.Constraint("Coincident", 7, 2, 8, 1))
sketch6.addConstraint(Sketcher.Constraint("Coincident", 8, 2, 9, 1))
sketch6.addConstraint(Sketcher.Constraint("Coincident", 9, 2, 10, 1))
sketch6.addConstraint(Sketcher.Constraint("Coincident", 10, 2, 11, 1))
sketch6.addConstraint(Sketcher.Constraint("Coincident", 11, 2, 12, 1))
sketch6.addConstraint(Sketcher.Constraint("Coincident", 12, 2, 13, 1))
sketch6.addConstraint(Sketcher.Constraint("Coincident", 13, 2, 14, 1))
sketch6.addConstraint(Sketcher.Constraint("Coincident", 14, 2, 15, 1))
sketch6.addConstraint(Sketcher.Constraint("Coincident", 15, 2, 16, 1))
sketch6.addConstraint(Sketcher.Constraint("Coincident", 16, 2, 17, 1))
sketch6.addConstraint(Sketcher.Constraint("Coincident", 17, 2, 0, 1))
sketch6.addConstraint(Sketcher.Constraint("Coincident", 18, 2, 19, 1))
sketch6.addConstraint(Sketcher.Constraint("Coincident", 19, 2, 20, 1))
sketch6.addConstraint(Sketcher.Constraint("Coincident", 20, 2, 21, 1))
sketch6.addConstraint(Sketcher.Constraint("Coincident", 21, 2, 18, 1))
sketch6.addConstraint(Sketcher.Constraint("Horizontal", 0))
sketch6.addConstraint(Sketcher.Constraint("Horizontal", 3))
sketch6.addConstraint(Sketcher.Constraint("Vertical", 6))
sketch6.addConstraint(Sketcher.Constraint("Vertical", 11))
sketch6.addConstraint(Sketcher.Constraint("Horizontal", 14))
sketch6.addConstraint(Sketcher.Constraint("Horizontal", 17))
sketch6.addConstraint(Sketcher.Constraint("Coincident", 21, 2, 17, 2))
sketch6.addConstraint(Sketcher.Constraint("DistanceY", -1, 1, 6, 2, Q("84 in")))
sketch6.addConstraint(Sketcher.Constraint("DistanceX", -1, 1, 8, 2, Q("48 in")))
sketch6.addConstraint(Sketcher.Constraint("DistanceY", -1, 1, 8, 2, Q("84 in")))
sketch6.addConstraint(Sketcher.Constraint("DistanceX", -1, 1, 17, 2, Q("48 in")))
sketch6.addConstraint(Sketcher.Constraint("DistanceX", -1, 1, 19, 2, Q("48 in")))
sketch6.addConstraint(Sketcher.Constraint("DistanceX", 13, 2, 11, 2, Q("0.8 in")))
sketch6.addConstraint(Sketcher.Constraint("DistanceY", -1, 1, 0, 2, Q("94.875 in")))
sketch6.addConstraint(Sketcher.Constraint("DistanceX", -1, 1, 1, 2, Q("71.4375 in")))
sketch6.addConstraint(Sketcher.Constraint("DistanceY", -1, 1, 2, 2, Q("94.875 in")))
sketch6.addConstraint(Sketcher.Constraint("DistanceX", -1, 1, 3, 2, Q("94.875 in")))
sketch6.addConstraint(Sketcher.Constraint("DistanceX", -1, 1, 5, 2, Q("94.875 in")))
sketch6.addConstraint(Sketcher.Constraint("DistanceX", -1, 1, 7, 2, Q("71.4375 in")))
sketch6.addConstraint(Sketcher.Constraint("DistanceY", -1, 1, 7, 2, Q("89.4375 in")))
sketch6.addConstraint(Sketcher.Constraint("DistanceX", -1, 1, 9, 2, Q("24.5625 in")))
sketch6.addConstraint(Sketcher.Constraint("DistanceY", -1, 1, 9, 2, Q("89.4375 in")))
sketch6.addConstraint(Sketcher.Constraint("DistanceX", -1, 1, 10, 2, Q("1.925 in")))
sketch6.addConstraint(Sketcher.Constraint("DistanceY", -1, 1, 13, 2, Q("94.875 in")))
sketch6.addConstraint(Sketcher.Constraint("DistanceX", -1, 1, 15, 2, Q("24.5625 in")))
sketch6.addConstraint(Sketcher.Constraint("DistanceY", 5, 2, 1, 2, Q("5.4375 in")))
sketch6.addConstraint(Sketcher.Constraint("Distance", 1, Q("20.4261 in")))
sketch6.addConstraint(Sketcher.Constraint("Distance", 2, Q("20.4261 in")))
sketch6.addConstraint(Sketcher.Constraint("Distance", 10, Q("23.2391 in")))
sketch6.addConstraint(Sketcher.Constraint("Distance", 12, Q("21.4218 in")))
sketch6.addConstraint(Sketcher.Constraint("Distance", 15, Q("20.4261 in")))
sketch6.addConstraint(Sketcher.Constraint("Distance", 16, Q("20.4261 in")))
sketch6.addConstraint(Sketcher.Constraint("DistanceX", 0, 1, 0, 2, Q("89.9124 mm")))
sketch6.addConstraint(Sketcher.Constraint("DistanceX", 14, 1, 14, 2, Q("89.9124 mm")))
sketch6.addConstraint(Sketcher.Constraint("DistanceY", 11, 1, 11, 2, Q("20.8995 mm")))
sketch6.addConstraint(Sketcher.Constraint("DistanceY", 10, 2, 12, 2, Q("5.6641 in")))
sketch6.addConstraint(Sketcher.Constraint("Distance", 4, Q("564.9734 mm")))
sketch6.addConstraint(Sketcher.Constraint("Distance", 5, Q("564.9734 mm")))
sketch6.addConstraint(Sketcher.Constraint("Distance", 18, Q("564.9734 mm")))
sketch6.addConstraint(Sketcher.Constraint("Distance", 19, Q("564.9734 mm")))
sketch6.addConstraint(Sketcher.Constraint("Distance", 20, Q("564.9734 mm")))
sketch6.addConstraint(Sketcher.Constraint("Distance", 21, Q("564.9734 mm")))
sketch6.addConstraint(Sketcher.Constraint("DistanceX", -1, 1, 18, 2, Q("668.8437 mm")))
pad4 = doc.addObject("PartDesign::Pad", "Pad003")
body.addObject(pad4)
pad4.Profile = sketch6
pad4.Length = Q("0.8 in")
pad4.Reversed = True

sketch7 = doc.addObject("Sketcher::SketchObject", "Sketch006")
body.addObject(sketch7)
sketch7.AttachmentSupport = (doc.YZ_Plane, [""])
sketch7.MapMode = "FlatFace"
sketch7.AttachmentOffset = App.Placement(App.Vector(0, 0, 94.875 * 25.4), App.Rotation())
sketch7.addGeometry(Part.LineSegment(App.Vector(2410, 1229, 0), App.Vector(2410, 1102, 0)), False)
sketch7.addGeometry(Part.LineSegment(App.Vector(2410, 1102, 0), App.Vector(2301, 629, 0)), False)
sketch7.addGeometry(Part.LineSegment(App.Vector(2301, 629, 0), App.Vector(2410, 156, 0)), False)
sketch7.addGeometry(Part.LineSegment(App.Vector(2410, 156, 0), App.Vector(2410, 29, 0)), False)
sketch7.addGeometry(Part.LineSegment(App.Vector(2410, 29, 0), App.Vector(2286, 565, 0)), False)
sketch7.addGeometry(Part.LineSegment(App.Vector(2286, 565, 0), App.Vector(2163, 29, 0)), False)
sketch7.addGeometry(Part.LineSegment(App.Vector(2163, 29, 0), App.Vector(2154, 49, 0)), False)
sketch7.addGeometry(Part.LineSegment(App.Vector(2154, 49, 0), App.Vector(2138, 49, 0)), False)
sketch7.addGeometry(Part.LineSegment(App.Vector(2138, 49, 0), App.Vector(2272, 629, 0)), False)
sketch7.addGeometry(Part.LineSegment(App.Vector(2272, 629, 0), App.Vector(2134, 1229, 0)), False)
sketch7.addGeometry(Part.LineSegment(App.Vector(2134, 1229, 0), App.Vector(2272, 1830, 0)), False)
sketch7.addGeometry(Part.LineSegment(App.Vector(2272, 1830, 0), App.Vector(2143, 2390, 0)), False)
sketch7.addGeometry(Part.LineSegment(App.Vector(2143, 2390, 0), App.Vector(2154, 2390, 0)), False)
sketch7.addGeometry(Part.LineSegment(App.Vector(2154, 2390, 0), App.Vector(2168, 2410, 0)), False)
sketch7.addGeometry(Part.LineSegment(App.Vector(2168, 2410, 0), App.Vector(2286, 1893, 0)), False)
sketch7.addGeometry(Part.LineSegment(App.Vector(2286, 1893, 0), App.Vector(2410, 2410, 0)), False)
sketch7.addGeometry(Part.LineSegment(App.Vector(2410, 2410, 0), App.Vector(2410, 2303, 0)), False)
sketch7.addGeometry(Part.LineSegment(App.Vector(2410, 2303, 0), App.Vector(2301, 1830, 0)), False)
sketch7.addGeometry(Part.LineSegment(App.Vector(2301, 1830, 0), App.Vector(2410, 1357, 0)), False)
sketch7.addGeometry(Part.LineSegment(App.Vector(2410, 1357, 0), App.Vector(2410, 1229, 0)), False)
sketch7.addGeometry(Part.LineSegment(App.Vector(2410, 1229, 0), App.Vector(2286, 1766, 0)), False)
sketch7.addGeometry(Part.LineSegment(App.Vector(2286, 1766, 0), App.Vector(2163, 1229, 0)), False)
sketch7.addGeometry(Part.LineSegment(App.Vector(2163, 1229, 0), App.Vector(2286, 693, 0)), False)
sketch7.addGeometry(Part.LineSegment(App.Vector(2286, 693, 0), App.Vector(2410, 1229, 0)), False)
sketch7.addConstraint(Sketcher.Constraint("Coincident", 0, 2, 1, 1))
sketch7.addConstraint(Sketcher.Constraint("Coincident", 1, 2, 2, 1))
sketch7.addConstraint(Sketcher.Constraint("Coincident", 2, 2, 3, 1))
sketch7.addConstraint(Sketcher.Constraint("Coincident", 3, 2, 4, 1))
sketch7.addConstraint(Sketcher.Constraint("Coincident", 4, 2, 5, 1))
sketch7.addConstraint(Sketcher.Constraint("Coincident", 5, 2, 6, 1))
sketch7.addConstraint(Sketcher.Constraint("Coincident", 6, 2, 7, 1))
sketch7.addConstraint(Sketcher.Constraint("Coincident", 7, 2, 8, 1))
sketch7.addConstraint(Sketcher.Constraint("Coincident", 8, 2, 9, 1))
sketch7.addConstraint(Sketcher.Constraint("Coincident", 9, 2, 10, 1))
sketch7.addConstraint(Sketcher.Constraint("Coincident", 10, 2, 11, 1))
sketch7.addConstraint(Sketcher.Constraint("Coincident", 11, 2, 12, 1))
sketch7.addConstraint(Sketcher.Constraint("Coincident", 12, 2, 13, 1))
sketch7.addConstraint(Sketcher.Constraint("Coincident", 13, 2, 14, 1))
sketch7.addConstraint(Sketcher.Constraint("Coincident", 14, 2, 15, 1))
sketch7.addConstraint(Sketcher.Constraint("Coincident", 15, 2, 16, 1))
sketch7.addConstraint(Sketcher.Constraint("Coincident", 16, 2, 17, 1))
sketch7.addConstraint(Sketcher.Constraint("Coincident", 17, 2, 18, 1))
sketch7.addConstraint(Sketcher.Constraint("Coincident", 18, 2, 19, 1))
sketch7.addConstraint(Sketcher.Constraint("Coincident", 19, 2, 0, 1))
sketch7.addConstraint(Sketcher.Constraint("Coincident", 20, 2, 21, 1))
sketch7.addConstraint(Sketcher.Constraint("Coincident", 21, 2, 22, 1))
sketch7.addConstraint(Sketcher.Constraint("Coincident", 22, 2, 23, 1))
sketch7.addConstraint(Sketcher.Constraint("Coincident", 23, 2, 20, 1))
sketch7.addConstraint(Sketcher.Constraint("Vertical", 0))
sketch7.addConstraint(Sketcher.Constraint("Vertical", 3))
sketch7.addConstraint(Sketcher.Constraint("Horizontal", 7))
sketch7.addConstraint(Sketcher.Constraint("Horizontal", 12))
sketch7.addConstraint(Sketcher.Constraint("Vertical", 16))
sketch7.addConstraint(Sketcher.Constraint("Vertical", 19))
sketch7.addConstraint(Sketcher.Constraint("Coincident", 23, 2, 19, 2))
sketch7.addConstraint(Sketcher.Constraint("Parallel", 2, 4))
sketch7.addConstraint(Sketcher.Constraint("Parallel", 1, 5))
sketch7.addConstraint(Sketcher.Constraint("Parallel", 5, 8))
sketch7.addConstraint(Sketcher.Constraint("Parallel", 4, 9))
sketch7.addConstraint(Sketcher.Constraint("Parallel", 8, 10))
sketch7.addConstraint(Sketcher.Constraint("Parallel", 9, 11))
sketch7.addConstraint(Sketcher.Constraint("Parallel", 11, 14))
sketch7.addConstraint(Sketcher.Constraint("Parallel", 10, 17))
sketch7.addConstraint(Sketcher.Constraint("Parallel", 14, 18))
sketch7.addConstraint(Sketcher.Constraint("Parallel", 18, 20))
sketch7.addConstraint(Sketcher.Constraint("Parallel", 17, 21))
sketch7.addConstraint(Sketcher.Constraint("Parallel", 20, 22))
sketch7.addConstraint(Sketcher.Constraint("Parallel", 21, 23))
sketch7.addConstraint(Sketcher.Constraint("Horizontal", 3, 2, 5, 2))
sketch7.addConstraint(Sketcher.Constraint("Horizontal", 1, 2, 8, 2))
sketch7.addConstraint(Sketcher.Constraint("Horizontal", 13, 2, 15, 2))
sketch7.addConstraint(Sketcher.Constraint("Horizontal", 10, 2, 17, 2))
sketch7.addConstraint(Sketcher.Constraint("Horizontal", 9, 2, 19, 2))
sketch7.addConstraint(Sketcher.Constraint("Horizontal", 19, 2, 21, 2))
sketch7.addConstraint(Sketcher.Constraint("Vertical", 0, 2, 2, 2))
sketch7.addConstraint(Sketcher.Constraint("Vertical", 8, 2, 10, 2))
sketch7.addConstraint(Sketcher.Constraint("Vertical", 6, 2, 12, 2))
sketch7.addConstraint(Sketcher.Constraint("Vertical", 4, 2, 14, 2))
sketch7.addConstraint(Sketcher.Constraint("Vertical", 3, 2, 15, 2))
sketch7.addConstraint(Sketcher.Constraint("Vertical", 1, 2, 17, 2))
sketch7.addConstraint(Sketcher.Constraint("Vertical", 14, 2, 20, 2))
sketch7.addConstraint(Sketcher.Constraint("Vertical", 20, 2, 22, 2))
sketch7.addConstraint(Sketcher.Constraint("Equal", 0, 3))
sketch7.addConstraint(Sketcher.Constraint("DistanceX", -1, 1, 9, 2, Q("84 in")))
sketch7.addConstraint(Sketcher.Constraint("DistanceY", -1, 1, 9, 2, Q("48.4 in")))
sketch7.addConstraint(Sketcher.Constraint("DistanceY", 5, 2, 6, 2, Q("0.8 in")))
sketch7.addConstraint(Sketcher.Constraint("DistanceY", 12, 2, 13, 2, Q("0.8 in")))
sketch7.addConstraint(Sketcher.Constraint("Angle", 13, Q("57.119 deg")))
sketch7.addConstraint(Sketcher.Constraint("DistanceX", 12, 1, 12, 2, Q("0.4532 in")))
sketch7.addConstraint(Sketcher.Constraint("DistanceX", -1, 1, 0, 2, Q("94.875 in")))
sketch7.addConstraint(Sketcher.Constraint("DistanceY", -1, 1, 3, 2, Q("1.125 in")))
sketch7.addConstraint(Sketcher.Constraint("DistanceX", -1, 1, 8, 2, Q("89.4375 in")))
sketch7.addConstraint(Sketcher.Constraint("DistanceY", -1, 1, 11, 2, Q("94.075 in")))
sketch7.addConstraint(Sketcher.Constraint("DistanceX", 5, 2, 1, 2, Q("5.4375 in")))
sketch7.addConstraint(Sketcher.Constraint("Distance", 4, Q("21.6802 in")))
pad5 = doc.addObject("PartDesign::Pad", "Pad004")
body.addObject(pad5)
pad5.Profile = sketch7
pad5.Length = Q("0.8 in")
pad5.Reversed = True

doc.recompute()
